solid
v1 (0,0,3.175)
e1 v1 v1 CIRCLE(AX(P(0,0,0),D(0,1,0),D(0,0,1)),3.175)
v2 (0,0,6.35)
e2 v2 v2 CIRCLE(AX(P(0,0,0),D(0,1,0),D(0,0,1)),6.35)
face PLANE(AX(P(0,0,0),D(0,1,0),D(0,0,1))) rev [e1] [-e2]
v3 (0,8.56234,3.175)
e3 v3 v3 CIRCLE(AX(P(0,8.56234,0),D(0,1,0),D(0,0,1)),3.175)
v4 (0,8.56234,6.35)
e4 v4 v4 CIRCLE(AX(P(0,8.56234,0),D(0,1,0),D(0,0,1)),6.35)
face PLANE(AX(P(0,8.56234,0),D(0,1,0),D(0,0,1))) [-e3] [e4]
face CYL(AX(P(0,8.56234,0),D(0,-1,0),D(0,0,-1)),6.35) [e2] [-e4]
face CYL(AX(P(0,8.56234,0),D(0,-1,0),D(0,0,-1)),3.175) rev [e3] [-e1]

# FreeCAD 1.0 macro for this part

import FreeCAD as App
import Part
import Sketcher
from FreeCAD import Vector
Q = App.Units.Quantity

doc = App.newDocument("Part")
body = doc.addObject("PartDesign::Body", "Body")

# Sketch on XZ plane
sketch1 = doc.addObject("Sketcher::SketchObject", "Sketch")
body.addObject(sketch1)
sketch1.AttachmentSupport = (doc.XZ_Plane, [""])
sketch1.MapMode = "FlatFace"
sketch1.addGeometry([
    Part.Circle(Vector(0, 0, 0), Vector(0, 0, 1), 6.35),
    Part.Circle(Vector(0, 0, 0), Vector(0, 0, 1), 3.175),
], False)
sketch1.addConstraint([
    Sketcher.Constraint("Coincident", 0, 3, -1, 1),
    Sketcher.Constraint("Coincident", 1, 3, -1, 1),
    Sketcher.Constraint("Diameter", 0, Q("0.5 in")),
    Sketcher.Constraint("Diameter", 1, Q("0.25 in")),
])
pad1 = doc.addObject("PartDesign::Pad", "Pad")
body.addObject(pad1)
pad1.Profile = sketch1
pad1.Length = Q("0.3371 in")
pad1.Reversed = True

doc.recompute()
